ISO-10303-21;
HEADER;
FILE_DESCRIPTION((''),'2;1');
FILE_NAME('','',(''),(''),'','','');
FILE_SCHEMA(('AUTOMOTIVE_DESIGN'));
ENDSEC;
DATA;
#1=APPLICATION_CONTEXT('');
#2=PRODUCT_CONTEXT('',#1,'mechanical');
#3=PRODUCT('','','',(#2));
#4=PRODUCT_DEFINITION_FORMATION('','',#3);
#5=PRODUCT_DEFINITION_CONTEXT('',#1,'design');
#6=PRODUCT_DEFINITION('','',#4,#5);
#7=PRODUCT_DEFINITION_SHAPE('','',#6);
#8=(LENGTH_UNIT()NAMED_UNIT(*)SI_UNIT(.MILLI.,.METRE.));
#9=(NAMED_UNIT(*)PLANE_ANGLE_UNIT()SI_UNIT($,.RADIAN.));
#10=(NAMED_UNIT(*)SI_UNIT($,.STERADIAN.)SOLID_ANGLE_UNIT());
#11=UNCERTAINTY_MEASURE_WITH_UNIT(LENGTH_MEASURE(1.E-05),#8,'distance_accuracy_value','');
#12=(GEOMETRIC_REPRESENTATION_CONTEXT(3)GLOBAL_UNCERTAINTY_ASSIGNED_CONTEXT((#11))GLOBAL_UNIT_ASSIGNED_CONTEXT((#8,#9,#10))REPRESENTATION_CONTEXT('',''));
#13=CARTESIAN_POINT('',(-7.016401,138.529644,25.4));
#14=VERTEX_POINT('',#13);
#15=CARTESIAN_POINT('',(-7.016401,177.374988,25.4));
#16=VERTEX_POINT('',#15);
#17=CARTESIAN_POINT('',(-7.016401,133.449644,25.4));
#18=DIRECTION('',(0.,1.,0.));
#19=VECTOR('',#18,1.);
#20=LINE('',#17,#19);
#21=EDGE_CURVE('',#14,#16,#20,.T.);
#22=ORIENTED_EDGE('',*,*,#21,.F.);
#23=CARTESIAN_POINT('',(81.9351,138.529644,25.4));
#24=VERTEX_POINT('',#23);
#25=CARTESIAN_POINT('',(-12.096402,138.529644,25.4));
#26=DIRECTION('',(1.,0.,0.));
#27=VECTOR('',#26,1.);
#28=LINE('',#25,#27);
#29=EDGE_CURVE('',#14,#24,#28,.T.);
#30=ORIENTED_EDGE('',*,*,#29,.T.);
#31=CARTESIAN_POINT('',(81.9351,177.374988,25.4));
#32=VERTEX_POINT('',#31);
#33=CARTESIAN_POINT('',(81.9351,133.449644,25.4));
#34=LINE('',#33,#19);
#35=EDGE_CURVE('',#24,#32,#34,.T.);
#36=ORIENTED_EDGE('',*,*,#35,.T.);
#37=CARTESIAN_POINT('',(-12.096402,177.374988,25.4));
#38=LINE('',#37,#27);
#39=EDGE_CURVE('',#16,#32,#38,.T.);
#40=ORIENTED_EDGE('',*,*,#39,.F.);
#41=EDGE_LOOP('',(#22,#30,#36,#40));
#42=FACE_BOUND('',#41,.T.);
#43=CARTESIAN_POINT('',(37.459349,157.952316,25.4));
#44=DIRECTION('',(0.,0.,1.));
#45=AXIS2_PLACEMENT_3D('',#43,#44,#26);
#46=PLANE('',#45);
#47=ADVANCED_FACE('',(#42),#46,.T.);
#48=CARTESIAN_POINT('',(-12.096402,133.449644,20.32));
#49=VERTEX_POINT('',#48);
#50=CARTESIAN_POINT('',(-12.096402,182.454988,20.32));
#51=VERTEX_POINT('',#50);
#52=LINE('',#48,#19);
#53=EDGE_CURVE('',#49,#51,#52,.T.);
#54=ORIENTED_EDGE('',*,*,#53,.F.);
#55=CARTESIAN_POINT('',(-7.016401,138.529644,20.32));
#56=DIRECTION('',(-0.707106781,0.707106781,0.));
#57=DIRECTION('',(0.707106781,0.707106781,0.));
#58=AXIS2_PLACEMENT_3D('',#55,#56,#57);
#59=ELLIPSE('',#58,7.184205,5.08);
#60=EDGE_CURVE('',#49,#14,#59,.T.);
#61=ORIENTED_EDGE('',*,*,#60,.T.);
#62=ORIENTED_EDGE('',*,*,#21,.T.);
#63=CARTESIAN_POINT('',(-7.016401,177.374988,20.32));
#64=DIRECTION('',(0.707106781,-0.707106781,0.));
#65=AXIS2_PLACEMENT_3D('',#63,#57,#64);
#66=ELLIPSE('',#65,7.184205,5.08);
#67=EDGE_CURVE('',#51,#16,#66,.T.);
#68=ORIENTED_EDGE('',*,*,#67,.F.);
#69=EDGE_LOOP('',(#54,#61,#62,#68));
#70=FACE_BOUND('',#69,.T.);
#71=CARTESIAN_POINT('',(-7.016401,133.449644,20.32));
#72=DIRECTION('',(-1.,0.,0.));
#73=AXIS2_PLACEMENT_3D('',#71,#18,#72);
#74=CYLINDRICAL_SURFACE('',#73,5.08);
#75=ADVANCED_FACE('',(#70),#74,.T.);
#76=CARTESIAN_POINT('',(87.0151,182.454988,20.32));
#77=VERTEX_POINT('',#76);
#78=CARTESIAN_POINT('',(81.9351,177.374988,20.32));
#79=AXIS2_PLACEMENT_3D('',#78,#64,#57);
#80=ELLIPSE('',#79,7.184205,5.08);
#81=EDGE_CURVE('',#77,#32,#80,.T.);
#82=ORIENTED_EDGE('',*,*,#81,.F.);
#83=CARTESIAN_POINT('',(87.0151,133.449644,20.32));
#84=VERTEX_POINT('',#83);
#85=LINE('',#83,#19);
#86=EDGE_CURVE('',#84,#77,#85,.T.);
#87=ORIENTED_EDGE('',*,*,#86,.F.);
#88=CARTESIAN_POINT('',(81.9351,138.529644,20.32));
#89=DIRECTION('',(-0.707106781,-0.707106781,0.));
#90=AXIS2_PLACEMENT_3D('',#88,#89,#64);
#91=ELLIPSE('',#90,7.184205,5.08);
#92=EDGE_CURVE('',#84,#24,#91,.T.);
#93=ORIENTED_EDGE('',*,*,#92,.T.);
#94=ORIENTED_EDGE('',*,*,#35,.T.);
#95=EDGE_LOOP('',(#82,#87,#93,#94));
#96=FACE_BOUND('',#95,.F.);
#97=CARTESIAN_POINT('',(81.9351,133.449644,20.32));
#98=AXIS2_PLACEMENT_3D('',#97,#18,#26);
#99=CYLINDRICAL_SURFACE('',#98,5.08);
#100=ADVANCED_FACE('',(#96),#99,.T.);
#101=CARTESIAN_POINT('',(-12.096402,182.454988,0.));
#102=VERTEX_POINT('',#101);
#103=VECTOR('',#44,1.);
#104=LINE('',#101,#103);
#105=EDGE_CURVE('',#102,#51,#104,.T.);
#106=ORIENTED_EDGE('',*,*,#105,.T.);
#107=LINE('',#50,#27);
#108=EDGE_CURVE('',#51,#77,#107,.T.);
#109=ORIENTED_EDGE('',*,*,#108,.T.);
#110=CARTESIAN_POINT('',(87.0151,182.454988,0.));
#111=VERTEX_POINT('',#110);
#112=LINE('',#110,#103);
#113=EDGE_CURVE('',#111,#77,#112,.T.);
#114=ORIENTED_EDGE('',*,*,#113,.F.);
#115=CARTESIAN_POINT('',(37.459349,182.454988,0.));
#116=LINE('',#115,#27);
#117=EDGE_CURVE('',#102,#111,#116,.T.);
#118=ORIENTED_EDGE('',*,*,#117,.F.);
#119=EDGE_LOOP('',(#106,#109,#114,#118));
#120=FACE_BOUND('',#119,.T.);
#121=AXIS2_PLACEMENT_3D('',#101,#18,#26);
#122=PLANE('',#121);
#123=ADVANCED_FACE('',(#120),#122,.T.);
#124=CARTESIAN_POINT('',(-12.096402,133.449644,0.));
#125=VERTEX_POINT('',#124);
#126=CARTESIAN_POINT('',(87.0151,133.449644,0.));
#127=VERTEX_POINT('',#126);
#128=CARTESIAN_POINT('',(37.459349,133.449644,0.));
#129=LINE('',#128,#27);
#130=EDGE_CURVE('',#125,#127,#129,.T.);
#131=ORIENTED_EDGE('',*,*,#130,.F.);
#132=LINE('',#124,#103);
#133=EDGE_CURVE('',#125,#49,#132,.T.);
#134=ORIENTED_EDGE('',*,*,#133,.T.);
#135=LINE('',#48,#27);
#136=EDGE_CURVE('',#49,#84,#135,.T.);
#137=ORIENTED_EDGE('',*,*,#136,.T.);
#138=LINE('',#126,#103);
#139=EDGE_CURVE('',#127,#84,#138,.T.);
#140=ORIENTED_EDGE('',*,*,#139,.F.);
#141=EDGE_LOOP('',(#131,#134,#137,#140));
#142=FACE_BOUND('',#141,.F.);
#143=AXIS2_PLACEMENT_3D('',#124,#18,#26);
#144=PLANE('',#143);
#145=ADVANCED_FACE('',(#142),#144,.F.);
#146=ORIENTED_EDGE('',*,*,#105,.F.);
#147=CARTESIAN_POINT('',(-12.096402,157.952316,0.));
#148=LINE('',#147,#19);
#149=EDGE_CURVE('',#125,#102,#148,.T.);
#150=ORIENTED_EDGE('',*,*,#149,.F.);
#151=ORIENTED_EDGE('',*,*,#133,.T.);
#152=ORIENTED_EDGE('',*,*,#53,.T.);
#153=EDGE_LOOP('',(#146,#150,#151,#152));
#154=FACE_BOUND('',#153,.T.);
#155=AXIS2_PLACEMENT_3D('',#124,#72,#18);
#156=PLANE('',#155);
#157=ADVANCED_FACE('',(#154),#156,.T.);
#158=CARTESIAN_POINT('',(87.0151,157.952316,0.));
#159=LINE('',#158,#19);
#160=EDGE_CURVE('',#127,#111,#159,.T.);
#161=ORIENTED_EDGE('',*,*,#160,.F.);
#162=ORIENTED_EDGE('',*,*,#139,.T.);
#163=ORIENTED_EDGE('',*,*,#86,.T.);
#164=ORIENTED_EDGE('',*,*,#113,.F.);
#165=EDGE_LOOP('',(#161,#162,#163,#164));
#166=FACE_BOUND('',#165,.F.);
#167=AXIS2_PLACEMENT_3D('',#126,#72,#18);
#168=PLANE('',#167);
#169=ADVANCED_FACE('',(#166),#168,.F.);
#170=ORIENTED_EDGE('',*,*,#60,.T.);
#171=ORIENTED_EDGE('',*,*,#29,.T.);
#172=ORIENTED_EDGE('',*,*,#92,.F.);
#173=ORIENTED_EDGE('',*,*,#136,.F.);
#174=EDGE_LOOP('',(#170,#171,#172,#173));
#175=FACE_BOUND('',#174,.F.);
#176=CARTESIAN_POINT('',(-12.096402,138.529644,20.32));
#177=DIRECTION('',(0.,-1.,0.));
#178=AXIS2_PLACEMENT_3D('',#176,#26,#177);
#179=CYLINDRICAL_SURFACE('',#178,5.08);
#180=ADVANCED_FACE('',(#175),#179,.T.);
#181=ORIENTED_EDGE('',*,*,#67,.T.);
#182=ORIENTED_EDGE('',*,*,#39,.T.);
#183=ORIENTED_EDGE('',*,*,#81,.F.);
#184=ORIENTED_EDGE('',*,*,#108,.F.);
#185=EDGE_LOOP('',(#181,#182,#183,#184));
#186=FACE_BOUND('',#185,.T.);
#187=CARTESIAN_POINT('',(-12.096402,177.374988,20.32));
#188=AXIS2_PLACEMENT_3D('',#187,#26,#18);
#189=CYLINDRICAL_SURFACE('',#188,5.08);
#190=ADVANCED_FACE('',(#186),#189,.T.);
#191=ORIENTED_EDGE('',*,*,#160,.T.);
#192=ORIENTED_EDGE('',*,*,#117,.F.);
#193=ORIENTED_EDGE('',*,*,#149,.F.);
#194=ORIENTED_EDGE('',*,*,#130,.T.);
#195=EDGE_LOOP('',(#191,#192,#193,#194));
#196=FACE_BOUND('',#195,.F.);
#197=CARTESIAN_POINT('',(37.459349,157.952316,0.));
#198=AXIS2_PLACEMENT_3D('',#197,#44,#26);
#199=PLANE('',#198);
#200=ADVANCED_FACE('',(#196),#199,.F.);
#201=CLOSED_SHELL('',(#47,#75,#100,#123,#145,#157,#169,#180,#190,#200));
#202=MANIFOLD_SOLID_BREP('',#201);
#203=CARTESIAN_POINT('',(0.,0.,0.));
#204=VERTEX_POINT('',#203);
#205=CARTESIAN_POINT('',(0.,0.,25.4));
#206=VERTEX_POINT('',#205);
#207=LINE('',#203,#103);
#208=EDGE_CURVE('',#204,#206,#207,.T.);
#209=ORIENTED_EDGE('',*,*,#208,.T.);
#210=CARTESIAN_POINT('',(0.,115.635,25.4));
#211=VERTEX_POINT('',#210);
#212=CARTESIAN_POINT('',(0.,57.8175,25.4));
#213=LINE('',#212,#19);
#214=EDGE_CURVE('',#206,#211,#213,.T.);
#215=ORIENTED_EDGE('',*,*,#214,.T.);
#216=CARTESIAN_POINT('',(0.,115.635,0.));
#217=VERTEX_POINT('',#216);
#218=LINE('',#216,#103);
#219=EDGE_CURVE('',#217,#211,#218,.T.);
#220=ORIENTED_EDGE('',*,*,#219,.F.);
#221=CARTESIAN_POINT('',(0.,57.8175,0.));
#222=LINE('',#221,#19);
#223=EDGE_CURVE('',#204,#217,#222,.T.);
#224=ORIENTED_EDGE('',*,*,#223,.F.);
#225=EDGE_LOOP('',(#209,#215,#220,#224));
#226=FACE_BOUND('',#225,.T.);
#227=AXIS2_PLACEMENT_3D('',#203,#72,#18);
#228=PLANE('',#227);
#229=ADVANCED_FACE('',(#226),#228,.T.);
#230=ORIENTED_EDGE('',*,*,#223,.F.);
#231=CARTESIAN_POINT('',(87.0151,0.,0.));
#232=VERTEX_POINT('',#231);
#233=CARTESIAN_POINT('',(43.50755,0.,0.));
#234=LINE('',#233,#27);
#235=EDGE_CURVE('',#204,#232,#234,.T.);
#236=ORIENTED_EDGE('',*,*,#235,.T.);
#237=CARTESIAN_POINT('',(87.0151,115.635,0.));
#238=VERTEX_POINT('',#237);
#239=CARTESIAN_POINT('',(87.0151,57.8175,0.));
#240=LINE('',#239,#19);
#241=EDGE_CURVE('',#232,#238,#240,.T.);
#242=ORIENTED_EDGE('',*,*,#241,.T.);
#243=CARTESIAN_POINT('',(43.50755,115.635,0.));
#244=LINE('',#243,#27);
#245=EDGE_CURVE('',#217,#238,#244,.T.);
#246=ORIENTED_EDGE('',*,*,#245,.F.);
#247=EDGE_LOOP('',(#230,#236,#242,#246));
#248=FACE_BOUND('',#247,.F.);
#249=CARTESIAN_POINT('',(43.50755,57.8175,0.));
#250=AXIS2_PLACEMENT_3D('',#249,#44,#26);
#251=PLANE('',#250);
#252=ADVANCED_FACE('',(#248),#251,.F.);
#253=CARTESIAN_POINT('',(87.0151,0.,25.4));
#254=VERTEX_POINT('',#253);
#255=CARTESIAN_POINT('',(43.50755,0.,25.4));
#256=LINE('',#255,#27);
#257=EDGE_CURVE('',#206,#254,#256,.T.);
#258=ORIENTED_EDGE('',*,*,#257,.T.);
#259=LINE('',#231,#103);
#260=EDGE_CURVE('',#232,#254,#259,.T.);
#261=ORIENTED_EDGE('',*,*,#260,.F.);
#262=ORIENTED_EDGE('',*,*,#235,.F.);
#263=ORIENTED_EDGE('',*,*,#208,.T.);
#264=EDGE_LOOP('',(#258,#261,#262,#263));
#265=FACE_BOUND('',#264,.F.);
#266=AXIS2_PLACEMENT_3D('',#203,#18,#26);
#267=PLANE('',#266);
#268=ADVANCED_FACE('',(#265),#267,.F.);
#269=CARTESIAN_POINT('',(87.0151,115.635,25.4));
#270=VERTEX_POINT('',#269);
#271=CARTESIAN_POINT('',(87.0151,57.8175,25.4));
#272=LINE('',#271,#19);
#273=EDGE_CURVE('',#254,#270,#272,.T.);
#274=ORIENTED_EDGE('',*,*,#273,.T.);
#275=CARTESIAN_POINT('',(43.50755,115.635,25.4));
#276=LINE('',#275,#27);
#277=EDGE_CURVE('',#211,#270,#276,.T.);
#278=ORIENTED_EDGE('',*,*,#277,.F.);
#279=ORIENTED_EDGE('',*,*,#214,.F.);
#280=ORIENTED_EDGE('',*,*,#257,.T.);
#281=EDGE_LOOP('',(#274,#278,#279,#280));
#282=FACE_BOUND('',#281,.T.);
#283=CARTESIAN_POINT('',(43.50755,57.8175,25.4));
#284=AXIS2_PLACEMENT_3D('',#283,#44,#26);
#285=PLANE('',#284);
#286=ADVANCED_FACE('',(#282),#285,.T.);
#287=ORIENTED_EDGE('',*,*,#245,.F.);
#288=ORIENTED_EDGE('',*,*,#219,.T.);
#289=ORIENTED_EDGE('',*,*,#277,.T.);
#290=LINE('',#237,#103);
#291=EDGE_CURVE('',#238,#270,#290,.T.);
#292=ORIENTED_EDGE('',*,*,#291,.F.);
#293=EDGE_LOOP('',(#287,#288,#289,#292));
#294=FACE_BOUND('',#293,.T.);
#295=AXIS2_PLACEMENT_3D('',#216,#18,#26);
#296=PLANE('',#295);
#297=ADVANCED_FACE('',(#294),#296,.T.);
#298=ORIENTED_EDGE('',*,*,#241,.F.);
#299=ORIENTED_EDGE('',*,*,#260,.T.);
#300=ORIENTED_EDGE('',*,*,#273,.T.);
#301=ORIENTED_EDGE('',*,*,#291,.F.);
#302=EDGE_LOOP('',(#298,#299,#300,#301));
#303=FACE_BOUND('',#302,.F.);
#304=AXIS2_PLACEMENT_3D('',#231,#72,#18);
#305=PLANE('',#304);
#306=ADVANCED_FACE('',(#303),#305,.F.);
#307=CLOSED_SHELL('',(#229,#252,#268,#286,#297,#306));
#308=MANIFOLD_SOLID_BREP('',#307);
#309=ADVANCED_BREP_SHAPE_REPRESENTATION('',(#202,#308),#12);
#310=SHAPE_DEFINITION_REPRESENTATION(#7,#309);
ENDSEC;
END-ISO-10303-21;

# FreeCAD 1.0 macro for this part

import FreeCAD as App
import Part
import Sketcher


def edges_at(feature, points):
    """Names of the edges that pass closest to the given points."""
    edges = feature.Shape.Edges
    near = lambda p: min(range(len(edges)), key=lambda i: edges[i].distToShape(Part.Vertex(*p))[0])
    return sorted({f"Edge{near(p) + 1}" for p in points})

doc = App.newDocument("Part")
params = doc.addObject("Spreadsheet::Sheet", "Params")
for row, (alias, value) in enumerate([
    ("pad1_length", "1 in"),
    ("fillet_radius", "0.2 in"),
], start=1):
    params.set(f"A{row}", alias)
    params.set(f"B{row}", "=" + value)
    params.setAlias(f"B{row}", alias)

body = doc.addObject("PartDesign::Body", "Body")
body.AllowCompound = True

# Sketch on XY plane
sketch1 = body.newObject("Sketcher::SketchObject", "Sketch")
sketch1.AttachmentSupport = (doc.getObject("XY_Plane"), [""])
sketch1.MapMode = "FlatFace"
sketch1.addGeometry(Part.LineSegment(App.Vector(0, 116, 0), App.Vector(0, 0, 0)), False)
sketch1.addGeometry(Part.LineSegment(App.Vector(0, 0, 0), App.Vector(87, 0, 0)), False)
sketch1.addGeometry(Part.LineSegment(App.Vector(87, 0, 0), App.Vector(87, 116, 0)), False)
sketch1.addGeometry(Part.LineSegment(App.Vector(87, 116, 0), App.Vector(0, 116, 0)), False)
sketch1.addGeometry(Part.LineSegment(App.Vector(-12, 182, 0), App.Vector(-12, 133, 0)), False)
sketch1.addGeometry(Part.LineSegment(App.Vector(-12, 133, 0), App.Vector(87, 133, 0)), False)
sketch1.addGeometry(Part.LineSegment(App.Vector(87, 133, 0), App.Vector(87, 182, 0)), False)
sketch1.addGeometry(Part.LineSegment(App.Vector(87, 182, 0), App.Vector(-12, 182, 0)), False)
sketch1.addConstraint(Sketcher.Constraint("Coincident", 0, 2, 1, 1))
sketch1.addConstraint(Sketcher.Constraint("Coincident", 1, 2, 2, 1))
sketch1.addConstraint(Sketcher.Constraint("Coincident", 2, 2, 3, 1))
sketch1.addConstraint(Sketcher.Constraint("Coincident", 3, 2, 0, 1))
sketch1.addConstraint(Sketcher.Constraint("Coincident", 4, 2, 5, 1))
sketch1.addConstraint(Sketcher.Constraint("Coincident", 5, 2, 6, 1))
sketch1.addConstraint(Sketcher.Constraint("Coincident", 6, 2, 7, 1))
sketch1.addConstraint(Sketcher.Constraint("Coincident", 7, 2, 4, 1))
sketch1.addConstraint(Sketcher.Constraint("Vertical", 0))
sketch1.addConstraint(Sketcher.Constraint("Horizontal", 1))
sketch1.addConstraint(Sketcher.Constraint("Vertical", 2))
sketch1.addConstraint(Sketcher.Constraint("Horizontal", 3))
sketch1.addConstraint(Sketcher.Constraint("Vertical", 4))
sketch1.addConstraint(Sketcher.Constraint("Horizontal", 5))
sketch1.addConstraint(Sketcher.Constraint("Vertical", 6))
sketch1.addConstraint(Sketcher.Constraint("Horizontal", 7))
sketch1.addConstraint(Sketcher.Constraint("Coincident", 0, 2, -1, 1))
sketch1.addConstraint(Sketcher.Constraint("Vertical", 2, 2, 5, 2))
sketch1.addConstraint(Sketcher.Constraint("DistanceX", 1, 1, 1, 2, 87.0151))
sketch1.addConstraint(Sketcher.Constraint("DistanceX", 5, 1, 5, 2, 99.111501))
sketch1.addConstraint(Sketcher.Constraint("DistanceY", 0, 2, 0, 1, 115.635))
sketch1.addConstraint(Sketcher.Constraint("DistanceY", 4, 2, 4, 1, 49.005344))
sketch1.addConstraint(Sketcher.Constraint("DistanceY", -1, 1, 4, 2, 133.449644))
pad1 = body.newObject("PartDesign::Pad", "Pad")
pad1.Profile = sketch1
pad1.setExpression("Length", "Params.pad1_length")
doc.recompute()

fillet = body.newObject("PartDesign::Fillet", "Fillet")
fillet.Base = (pad1, edges_at(pad1, [
    (37.459, 182.455, 25.4),
    (-12.096, 157.952, 25.4),
    (37.459, 133.45, 25.4),
    (87.015, 157.952, 25.4),
]))
fillet.setExpression("Radius", "Params.fillet_radius")

doc.recompute()
